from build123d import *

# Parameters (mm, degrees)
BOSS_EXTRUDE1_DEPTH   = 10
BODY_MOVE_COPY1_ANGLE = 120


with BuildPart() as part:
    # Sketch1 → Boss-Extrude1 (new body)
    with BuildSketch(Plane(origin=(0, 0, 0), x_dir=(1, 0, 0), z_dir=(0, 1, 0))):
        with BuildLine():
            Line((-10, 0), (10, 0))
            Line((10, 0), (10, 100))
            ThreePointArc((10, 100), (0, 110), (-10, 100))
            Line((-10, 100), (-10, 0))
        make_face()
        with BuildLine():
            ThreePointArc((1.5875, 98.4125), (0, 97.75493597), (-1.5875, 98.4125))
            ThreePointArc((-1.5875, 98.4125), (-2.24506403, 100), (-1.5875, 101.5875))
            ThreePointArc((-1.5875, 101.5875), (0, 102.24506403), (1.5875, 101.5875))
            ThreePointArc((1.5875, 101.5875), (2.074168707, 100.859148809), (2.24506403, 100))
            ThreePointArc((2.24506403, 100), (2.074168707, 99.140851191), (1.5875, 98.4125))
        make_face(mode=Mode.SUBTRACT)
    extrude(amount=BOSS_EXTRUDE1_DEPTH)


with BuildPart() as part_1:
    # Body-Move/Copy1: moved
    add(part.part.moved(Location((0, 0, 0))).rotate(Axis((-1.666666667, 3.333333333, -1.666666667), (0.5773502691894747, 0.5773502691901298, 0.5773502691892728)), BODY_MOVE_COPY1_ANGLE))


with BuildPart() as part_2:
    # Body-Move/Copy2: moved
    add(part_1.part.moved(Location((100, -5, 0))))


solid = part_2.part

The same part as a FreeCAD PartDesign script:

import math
import FreeCAD as App
import Part
import Sketcher

doc = App.newDocument("Part")
body = doc.addObject("PartDesign::Body", "Body")

# Sketch on XZ plane
sketch1 = body.newObject("Sketcher::SketchObject", "Sketch")
sketch1.AttachmentSupport = (doc.getObject("XZ_Plane"), [""])
sketch1.MapMode = "FlatFace"
sketch1.addGeometry(Part.LineSegment(App.Vector(-10, 0, 0), App.Vector(10, 0, 0)), False)
sketch1.addGeometry(Part.LineSegment(App.Vector(10, 0, 0), App.Vector(10, -100, 0)), False)
sketch1.addGeometry(Part.ArcOfCircle(Part.Circle(App.Vector(0, -100, 0), App.Vector(0, 0, 1), 10), math.radians(180), math.radians(360)), False)
sketch1.addGeometry(Part.LineSegment(App.Vector(-10, -100, 0), App.Vector(-10, 0, 0)), False)
sketch1.addGeometry(Part.ArcOfCircle(Part.Circle(App.Vector(0, -100, 0), App.Vector(0, 0, 1), 2.2), math.radians(0), math.radians(45)), False)
sketch1.addGeometry(Part.ArcOfCircle(Part.Circle(App.Vector(0, -100, 0), App.Vector(0, 0, 1), 2.2), math.radians(45), math.radians(135)), False)
sketch1.addGeometry(Part.ArcOfCircle(Part.Circle(App.Vector(0, -100, 0), App.Vector(0, 0, 1), 2.2), math.radians(135), math.radians(225)), False)
sketch1.addGeometry(Part.ArcOfCircle(Part.Circle(App.Vector(0, -100, 0), App.Vector(0, 0, 1), 2.2), math.radians(-135), math.radians(-45)), False)
sketch1.addGeometry(Part.ArcOfCircle(Part.Circle(App.Vector(0, -100, 0), App.Vector(0, 0, 1), 2.2), math.radians(-45), math.radians(0)), False)
sketch1.addConstraint(Sketcher.Constraint("Coincident", 0, 2, 1, 1))
sketch1.addConstraint(Sketcher.Constraint("Tangent", 1, 2, 2, 2))
sketch1.addConstraint(Sketcher.Constraint("Tangent", 2, 1, 3, 1))
sketch1.addConstraint(Sketcher.Constraint("Coincident", 3, 2, 0, 1))
sketch1.addConstraint(Sketcher.Constraint("Tangent", 4, 2, 5, 1))
sketch1.addConstraint(Sketcher.Constraint("Tangent", 5, 2, 6, 1))
sketch1.addConstraint(Sketcher.Constraint("Tangent", 6, 2, 7, 1))
sketch1.addConstraint(Sketcher.Constraint("Tangent", 7, 2, 8, 1))
sketch1.addConstraint(Sketcher.Constraint("Tangent", 8, 2, 4, 1))
sketch1.addConstraint(Sketcher.Constraint("Horizontal", 0))
sketch1.addConstraint(Sketcher.Constraint("Vertical", 1))
sketch1.addConstraint(Sketcher.Constraint("Vertical", 3))
sketch1.addConstraint(Sketcher.Constraint("Coincident", 4, 3, 2, 3))
sketch1.addConstraint(Sketcher.Constraint("Coincident", 6, 3, 2, 3))
sketch1.addConstraint(Sketcher.Constraint("Symmetric", 0, 2, 3, 2, -1, 1))
sketch1.addConstraint(Sketcher.Constraint("Horizontal", 4, 2, 5, 2))
sketch1.addConstraint(Sketcher.Constraint("Horizontal", 6, 2, 7, 2))
sketch1.addConstraint(Sketcher.Constraint("Horizontal", 2, 1, 8, 2))
sketch1.addConstraint(Sketcher.Constraint("Vertical", 5, 2, 6, 2))
sketch1.addConstraint(Sketcher.Constraint("Radius", 2, 10.0))
sketch1.addConstraint(Sketcher.Constraint("DistanceY", 1, 2, 1, 1, 100.0))
sketch1.addConstraint(Sketcher.Constraint("Radius", 4, 2.245064))
sketch1.addConstraint(Sketcher.Constraint("DistanceX", -1, 1, 4, 2, 1.5875))
pad1 = body.newObject("PartDesign::Pad", "Pad")
pad1.Profile = sketch1
pad1.Length = 10
pad1.Reversed = True
body2 = doc.addObject("PartDesign::Body", "Body001")
doc.recompute()

body.Placement = App.Placement(App.Vector(0, 5, -5), App.Rotation(App.Vector(0.577350269, 0.577350269, 0.577350269), 120))
boolean = body2.newObject("PartDesign::Boolean", "Boolean")
boolean.Type = "Fuse"
boolean.addObjects([body])
body3 = doc.addObject("PartDesign::Body", "Body002")
doc.recompute()

body2.Placement = App.Placement(App.Vector(100, -5, 0), App.Rotation(App.Vector(0, 0, 1), 0))
boolean2 = body3.newObject("PartDesign::Boolean", "Boolean001")
boolean2.Type = "Fuse"
boolean2.addObjects([body2])

doc.recompute()
